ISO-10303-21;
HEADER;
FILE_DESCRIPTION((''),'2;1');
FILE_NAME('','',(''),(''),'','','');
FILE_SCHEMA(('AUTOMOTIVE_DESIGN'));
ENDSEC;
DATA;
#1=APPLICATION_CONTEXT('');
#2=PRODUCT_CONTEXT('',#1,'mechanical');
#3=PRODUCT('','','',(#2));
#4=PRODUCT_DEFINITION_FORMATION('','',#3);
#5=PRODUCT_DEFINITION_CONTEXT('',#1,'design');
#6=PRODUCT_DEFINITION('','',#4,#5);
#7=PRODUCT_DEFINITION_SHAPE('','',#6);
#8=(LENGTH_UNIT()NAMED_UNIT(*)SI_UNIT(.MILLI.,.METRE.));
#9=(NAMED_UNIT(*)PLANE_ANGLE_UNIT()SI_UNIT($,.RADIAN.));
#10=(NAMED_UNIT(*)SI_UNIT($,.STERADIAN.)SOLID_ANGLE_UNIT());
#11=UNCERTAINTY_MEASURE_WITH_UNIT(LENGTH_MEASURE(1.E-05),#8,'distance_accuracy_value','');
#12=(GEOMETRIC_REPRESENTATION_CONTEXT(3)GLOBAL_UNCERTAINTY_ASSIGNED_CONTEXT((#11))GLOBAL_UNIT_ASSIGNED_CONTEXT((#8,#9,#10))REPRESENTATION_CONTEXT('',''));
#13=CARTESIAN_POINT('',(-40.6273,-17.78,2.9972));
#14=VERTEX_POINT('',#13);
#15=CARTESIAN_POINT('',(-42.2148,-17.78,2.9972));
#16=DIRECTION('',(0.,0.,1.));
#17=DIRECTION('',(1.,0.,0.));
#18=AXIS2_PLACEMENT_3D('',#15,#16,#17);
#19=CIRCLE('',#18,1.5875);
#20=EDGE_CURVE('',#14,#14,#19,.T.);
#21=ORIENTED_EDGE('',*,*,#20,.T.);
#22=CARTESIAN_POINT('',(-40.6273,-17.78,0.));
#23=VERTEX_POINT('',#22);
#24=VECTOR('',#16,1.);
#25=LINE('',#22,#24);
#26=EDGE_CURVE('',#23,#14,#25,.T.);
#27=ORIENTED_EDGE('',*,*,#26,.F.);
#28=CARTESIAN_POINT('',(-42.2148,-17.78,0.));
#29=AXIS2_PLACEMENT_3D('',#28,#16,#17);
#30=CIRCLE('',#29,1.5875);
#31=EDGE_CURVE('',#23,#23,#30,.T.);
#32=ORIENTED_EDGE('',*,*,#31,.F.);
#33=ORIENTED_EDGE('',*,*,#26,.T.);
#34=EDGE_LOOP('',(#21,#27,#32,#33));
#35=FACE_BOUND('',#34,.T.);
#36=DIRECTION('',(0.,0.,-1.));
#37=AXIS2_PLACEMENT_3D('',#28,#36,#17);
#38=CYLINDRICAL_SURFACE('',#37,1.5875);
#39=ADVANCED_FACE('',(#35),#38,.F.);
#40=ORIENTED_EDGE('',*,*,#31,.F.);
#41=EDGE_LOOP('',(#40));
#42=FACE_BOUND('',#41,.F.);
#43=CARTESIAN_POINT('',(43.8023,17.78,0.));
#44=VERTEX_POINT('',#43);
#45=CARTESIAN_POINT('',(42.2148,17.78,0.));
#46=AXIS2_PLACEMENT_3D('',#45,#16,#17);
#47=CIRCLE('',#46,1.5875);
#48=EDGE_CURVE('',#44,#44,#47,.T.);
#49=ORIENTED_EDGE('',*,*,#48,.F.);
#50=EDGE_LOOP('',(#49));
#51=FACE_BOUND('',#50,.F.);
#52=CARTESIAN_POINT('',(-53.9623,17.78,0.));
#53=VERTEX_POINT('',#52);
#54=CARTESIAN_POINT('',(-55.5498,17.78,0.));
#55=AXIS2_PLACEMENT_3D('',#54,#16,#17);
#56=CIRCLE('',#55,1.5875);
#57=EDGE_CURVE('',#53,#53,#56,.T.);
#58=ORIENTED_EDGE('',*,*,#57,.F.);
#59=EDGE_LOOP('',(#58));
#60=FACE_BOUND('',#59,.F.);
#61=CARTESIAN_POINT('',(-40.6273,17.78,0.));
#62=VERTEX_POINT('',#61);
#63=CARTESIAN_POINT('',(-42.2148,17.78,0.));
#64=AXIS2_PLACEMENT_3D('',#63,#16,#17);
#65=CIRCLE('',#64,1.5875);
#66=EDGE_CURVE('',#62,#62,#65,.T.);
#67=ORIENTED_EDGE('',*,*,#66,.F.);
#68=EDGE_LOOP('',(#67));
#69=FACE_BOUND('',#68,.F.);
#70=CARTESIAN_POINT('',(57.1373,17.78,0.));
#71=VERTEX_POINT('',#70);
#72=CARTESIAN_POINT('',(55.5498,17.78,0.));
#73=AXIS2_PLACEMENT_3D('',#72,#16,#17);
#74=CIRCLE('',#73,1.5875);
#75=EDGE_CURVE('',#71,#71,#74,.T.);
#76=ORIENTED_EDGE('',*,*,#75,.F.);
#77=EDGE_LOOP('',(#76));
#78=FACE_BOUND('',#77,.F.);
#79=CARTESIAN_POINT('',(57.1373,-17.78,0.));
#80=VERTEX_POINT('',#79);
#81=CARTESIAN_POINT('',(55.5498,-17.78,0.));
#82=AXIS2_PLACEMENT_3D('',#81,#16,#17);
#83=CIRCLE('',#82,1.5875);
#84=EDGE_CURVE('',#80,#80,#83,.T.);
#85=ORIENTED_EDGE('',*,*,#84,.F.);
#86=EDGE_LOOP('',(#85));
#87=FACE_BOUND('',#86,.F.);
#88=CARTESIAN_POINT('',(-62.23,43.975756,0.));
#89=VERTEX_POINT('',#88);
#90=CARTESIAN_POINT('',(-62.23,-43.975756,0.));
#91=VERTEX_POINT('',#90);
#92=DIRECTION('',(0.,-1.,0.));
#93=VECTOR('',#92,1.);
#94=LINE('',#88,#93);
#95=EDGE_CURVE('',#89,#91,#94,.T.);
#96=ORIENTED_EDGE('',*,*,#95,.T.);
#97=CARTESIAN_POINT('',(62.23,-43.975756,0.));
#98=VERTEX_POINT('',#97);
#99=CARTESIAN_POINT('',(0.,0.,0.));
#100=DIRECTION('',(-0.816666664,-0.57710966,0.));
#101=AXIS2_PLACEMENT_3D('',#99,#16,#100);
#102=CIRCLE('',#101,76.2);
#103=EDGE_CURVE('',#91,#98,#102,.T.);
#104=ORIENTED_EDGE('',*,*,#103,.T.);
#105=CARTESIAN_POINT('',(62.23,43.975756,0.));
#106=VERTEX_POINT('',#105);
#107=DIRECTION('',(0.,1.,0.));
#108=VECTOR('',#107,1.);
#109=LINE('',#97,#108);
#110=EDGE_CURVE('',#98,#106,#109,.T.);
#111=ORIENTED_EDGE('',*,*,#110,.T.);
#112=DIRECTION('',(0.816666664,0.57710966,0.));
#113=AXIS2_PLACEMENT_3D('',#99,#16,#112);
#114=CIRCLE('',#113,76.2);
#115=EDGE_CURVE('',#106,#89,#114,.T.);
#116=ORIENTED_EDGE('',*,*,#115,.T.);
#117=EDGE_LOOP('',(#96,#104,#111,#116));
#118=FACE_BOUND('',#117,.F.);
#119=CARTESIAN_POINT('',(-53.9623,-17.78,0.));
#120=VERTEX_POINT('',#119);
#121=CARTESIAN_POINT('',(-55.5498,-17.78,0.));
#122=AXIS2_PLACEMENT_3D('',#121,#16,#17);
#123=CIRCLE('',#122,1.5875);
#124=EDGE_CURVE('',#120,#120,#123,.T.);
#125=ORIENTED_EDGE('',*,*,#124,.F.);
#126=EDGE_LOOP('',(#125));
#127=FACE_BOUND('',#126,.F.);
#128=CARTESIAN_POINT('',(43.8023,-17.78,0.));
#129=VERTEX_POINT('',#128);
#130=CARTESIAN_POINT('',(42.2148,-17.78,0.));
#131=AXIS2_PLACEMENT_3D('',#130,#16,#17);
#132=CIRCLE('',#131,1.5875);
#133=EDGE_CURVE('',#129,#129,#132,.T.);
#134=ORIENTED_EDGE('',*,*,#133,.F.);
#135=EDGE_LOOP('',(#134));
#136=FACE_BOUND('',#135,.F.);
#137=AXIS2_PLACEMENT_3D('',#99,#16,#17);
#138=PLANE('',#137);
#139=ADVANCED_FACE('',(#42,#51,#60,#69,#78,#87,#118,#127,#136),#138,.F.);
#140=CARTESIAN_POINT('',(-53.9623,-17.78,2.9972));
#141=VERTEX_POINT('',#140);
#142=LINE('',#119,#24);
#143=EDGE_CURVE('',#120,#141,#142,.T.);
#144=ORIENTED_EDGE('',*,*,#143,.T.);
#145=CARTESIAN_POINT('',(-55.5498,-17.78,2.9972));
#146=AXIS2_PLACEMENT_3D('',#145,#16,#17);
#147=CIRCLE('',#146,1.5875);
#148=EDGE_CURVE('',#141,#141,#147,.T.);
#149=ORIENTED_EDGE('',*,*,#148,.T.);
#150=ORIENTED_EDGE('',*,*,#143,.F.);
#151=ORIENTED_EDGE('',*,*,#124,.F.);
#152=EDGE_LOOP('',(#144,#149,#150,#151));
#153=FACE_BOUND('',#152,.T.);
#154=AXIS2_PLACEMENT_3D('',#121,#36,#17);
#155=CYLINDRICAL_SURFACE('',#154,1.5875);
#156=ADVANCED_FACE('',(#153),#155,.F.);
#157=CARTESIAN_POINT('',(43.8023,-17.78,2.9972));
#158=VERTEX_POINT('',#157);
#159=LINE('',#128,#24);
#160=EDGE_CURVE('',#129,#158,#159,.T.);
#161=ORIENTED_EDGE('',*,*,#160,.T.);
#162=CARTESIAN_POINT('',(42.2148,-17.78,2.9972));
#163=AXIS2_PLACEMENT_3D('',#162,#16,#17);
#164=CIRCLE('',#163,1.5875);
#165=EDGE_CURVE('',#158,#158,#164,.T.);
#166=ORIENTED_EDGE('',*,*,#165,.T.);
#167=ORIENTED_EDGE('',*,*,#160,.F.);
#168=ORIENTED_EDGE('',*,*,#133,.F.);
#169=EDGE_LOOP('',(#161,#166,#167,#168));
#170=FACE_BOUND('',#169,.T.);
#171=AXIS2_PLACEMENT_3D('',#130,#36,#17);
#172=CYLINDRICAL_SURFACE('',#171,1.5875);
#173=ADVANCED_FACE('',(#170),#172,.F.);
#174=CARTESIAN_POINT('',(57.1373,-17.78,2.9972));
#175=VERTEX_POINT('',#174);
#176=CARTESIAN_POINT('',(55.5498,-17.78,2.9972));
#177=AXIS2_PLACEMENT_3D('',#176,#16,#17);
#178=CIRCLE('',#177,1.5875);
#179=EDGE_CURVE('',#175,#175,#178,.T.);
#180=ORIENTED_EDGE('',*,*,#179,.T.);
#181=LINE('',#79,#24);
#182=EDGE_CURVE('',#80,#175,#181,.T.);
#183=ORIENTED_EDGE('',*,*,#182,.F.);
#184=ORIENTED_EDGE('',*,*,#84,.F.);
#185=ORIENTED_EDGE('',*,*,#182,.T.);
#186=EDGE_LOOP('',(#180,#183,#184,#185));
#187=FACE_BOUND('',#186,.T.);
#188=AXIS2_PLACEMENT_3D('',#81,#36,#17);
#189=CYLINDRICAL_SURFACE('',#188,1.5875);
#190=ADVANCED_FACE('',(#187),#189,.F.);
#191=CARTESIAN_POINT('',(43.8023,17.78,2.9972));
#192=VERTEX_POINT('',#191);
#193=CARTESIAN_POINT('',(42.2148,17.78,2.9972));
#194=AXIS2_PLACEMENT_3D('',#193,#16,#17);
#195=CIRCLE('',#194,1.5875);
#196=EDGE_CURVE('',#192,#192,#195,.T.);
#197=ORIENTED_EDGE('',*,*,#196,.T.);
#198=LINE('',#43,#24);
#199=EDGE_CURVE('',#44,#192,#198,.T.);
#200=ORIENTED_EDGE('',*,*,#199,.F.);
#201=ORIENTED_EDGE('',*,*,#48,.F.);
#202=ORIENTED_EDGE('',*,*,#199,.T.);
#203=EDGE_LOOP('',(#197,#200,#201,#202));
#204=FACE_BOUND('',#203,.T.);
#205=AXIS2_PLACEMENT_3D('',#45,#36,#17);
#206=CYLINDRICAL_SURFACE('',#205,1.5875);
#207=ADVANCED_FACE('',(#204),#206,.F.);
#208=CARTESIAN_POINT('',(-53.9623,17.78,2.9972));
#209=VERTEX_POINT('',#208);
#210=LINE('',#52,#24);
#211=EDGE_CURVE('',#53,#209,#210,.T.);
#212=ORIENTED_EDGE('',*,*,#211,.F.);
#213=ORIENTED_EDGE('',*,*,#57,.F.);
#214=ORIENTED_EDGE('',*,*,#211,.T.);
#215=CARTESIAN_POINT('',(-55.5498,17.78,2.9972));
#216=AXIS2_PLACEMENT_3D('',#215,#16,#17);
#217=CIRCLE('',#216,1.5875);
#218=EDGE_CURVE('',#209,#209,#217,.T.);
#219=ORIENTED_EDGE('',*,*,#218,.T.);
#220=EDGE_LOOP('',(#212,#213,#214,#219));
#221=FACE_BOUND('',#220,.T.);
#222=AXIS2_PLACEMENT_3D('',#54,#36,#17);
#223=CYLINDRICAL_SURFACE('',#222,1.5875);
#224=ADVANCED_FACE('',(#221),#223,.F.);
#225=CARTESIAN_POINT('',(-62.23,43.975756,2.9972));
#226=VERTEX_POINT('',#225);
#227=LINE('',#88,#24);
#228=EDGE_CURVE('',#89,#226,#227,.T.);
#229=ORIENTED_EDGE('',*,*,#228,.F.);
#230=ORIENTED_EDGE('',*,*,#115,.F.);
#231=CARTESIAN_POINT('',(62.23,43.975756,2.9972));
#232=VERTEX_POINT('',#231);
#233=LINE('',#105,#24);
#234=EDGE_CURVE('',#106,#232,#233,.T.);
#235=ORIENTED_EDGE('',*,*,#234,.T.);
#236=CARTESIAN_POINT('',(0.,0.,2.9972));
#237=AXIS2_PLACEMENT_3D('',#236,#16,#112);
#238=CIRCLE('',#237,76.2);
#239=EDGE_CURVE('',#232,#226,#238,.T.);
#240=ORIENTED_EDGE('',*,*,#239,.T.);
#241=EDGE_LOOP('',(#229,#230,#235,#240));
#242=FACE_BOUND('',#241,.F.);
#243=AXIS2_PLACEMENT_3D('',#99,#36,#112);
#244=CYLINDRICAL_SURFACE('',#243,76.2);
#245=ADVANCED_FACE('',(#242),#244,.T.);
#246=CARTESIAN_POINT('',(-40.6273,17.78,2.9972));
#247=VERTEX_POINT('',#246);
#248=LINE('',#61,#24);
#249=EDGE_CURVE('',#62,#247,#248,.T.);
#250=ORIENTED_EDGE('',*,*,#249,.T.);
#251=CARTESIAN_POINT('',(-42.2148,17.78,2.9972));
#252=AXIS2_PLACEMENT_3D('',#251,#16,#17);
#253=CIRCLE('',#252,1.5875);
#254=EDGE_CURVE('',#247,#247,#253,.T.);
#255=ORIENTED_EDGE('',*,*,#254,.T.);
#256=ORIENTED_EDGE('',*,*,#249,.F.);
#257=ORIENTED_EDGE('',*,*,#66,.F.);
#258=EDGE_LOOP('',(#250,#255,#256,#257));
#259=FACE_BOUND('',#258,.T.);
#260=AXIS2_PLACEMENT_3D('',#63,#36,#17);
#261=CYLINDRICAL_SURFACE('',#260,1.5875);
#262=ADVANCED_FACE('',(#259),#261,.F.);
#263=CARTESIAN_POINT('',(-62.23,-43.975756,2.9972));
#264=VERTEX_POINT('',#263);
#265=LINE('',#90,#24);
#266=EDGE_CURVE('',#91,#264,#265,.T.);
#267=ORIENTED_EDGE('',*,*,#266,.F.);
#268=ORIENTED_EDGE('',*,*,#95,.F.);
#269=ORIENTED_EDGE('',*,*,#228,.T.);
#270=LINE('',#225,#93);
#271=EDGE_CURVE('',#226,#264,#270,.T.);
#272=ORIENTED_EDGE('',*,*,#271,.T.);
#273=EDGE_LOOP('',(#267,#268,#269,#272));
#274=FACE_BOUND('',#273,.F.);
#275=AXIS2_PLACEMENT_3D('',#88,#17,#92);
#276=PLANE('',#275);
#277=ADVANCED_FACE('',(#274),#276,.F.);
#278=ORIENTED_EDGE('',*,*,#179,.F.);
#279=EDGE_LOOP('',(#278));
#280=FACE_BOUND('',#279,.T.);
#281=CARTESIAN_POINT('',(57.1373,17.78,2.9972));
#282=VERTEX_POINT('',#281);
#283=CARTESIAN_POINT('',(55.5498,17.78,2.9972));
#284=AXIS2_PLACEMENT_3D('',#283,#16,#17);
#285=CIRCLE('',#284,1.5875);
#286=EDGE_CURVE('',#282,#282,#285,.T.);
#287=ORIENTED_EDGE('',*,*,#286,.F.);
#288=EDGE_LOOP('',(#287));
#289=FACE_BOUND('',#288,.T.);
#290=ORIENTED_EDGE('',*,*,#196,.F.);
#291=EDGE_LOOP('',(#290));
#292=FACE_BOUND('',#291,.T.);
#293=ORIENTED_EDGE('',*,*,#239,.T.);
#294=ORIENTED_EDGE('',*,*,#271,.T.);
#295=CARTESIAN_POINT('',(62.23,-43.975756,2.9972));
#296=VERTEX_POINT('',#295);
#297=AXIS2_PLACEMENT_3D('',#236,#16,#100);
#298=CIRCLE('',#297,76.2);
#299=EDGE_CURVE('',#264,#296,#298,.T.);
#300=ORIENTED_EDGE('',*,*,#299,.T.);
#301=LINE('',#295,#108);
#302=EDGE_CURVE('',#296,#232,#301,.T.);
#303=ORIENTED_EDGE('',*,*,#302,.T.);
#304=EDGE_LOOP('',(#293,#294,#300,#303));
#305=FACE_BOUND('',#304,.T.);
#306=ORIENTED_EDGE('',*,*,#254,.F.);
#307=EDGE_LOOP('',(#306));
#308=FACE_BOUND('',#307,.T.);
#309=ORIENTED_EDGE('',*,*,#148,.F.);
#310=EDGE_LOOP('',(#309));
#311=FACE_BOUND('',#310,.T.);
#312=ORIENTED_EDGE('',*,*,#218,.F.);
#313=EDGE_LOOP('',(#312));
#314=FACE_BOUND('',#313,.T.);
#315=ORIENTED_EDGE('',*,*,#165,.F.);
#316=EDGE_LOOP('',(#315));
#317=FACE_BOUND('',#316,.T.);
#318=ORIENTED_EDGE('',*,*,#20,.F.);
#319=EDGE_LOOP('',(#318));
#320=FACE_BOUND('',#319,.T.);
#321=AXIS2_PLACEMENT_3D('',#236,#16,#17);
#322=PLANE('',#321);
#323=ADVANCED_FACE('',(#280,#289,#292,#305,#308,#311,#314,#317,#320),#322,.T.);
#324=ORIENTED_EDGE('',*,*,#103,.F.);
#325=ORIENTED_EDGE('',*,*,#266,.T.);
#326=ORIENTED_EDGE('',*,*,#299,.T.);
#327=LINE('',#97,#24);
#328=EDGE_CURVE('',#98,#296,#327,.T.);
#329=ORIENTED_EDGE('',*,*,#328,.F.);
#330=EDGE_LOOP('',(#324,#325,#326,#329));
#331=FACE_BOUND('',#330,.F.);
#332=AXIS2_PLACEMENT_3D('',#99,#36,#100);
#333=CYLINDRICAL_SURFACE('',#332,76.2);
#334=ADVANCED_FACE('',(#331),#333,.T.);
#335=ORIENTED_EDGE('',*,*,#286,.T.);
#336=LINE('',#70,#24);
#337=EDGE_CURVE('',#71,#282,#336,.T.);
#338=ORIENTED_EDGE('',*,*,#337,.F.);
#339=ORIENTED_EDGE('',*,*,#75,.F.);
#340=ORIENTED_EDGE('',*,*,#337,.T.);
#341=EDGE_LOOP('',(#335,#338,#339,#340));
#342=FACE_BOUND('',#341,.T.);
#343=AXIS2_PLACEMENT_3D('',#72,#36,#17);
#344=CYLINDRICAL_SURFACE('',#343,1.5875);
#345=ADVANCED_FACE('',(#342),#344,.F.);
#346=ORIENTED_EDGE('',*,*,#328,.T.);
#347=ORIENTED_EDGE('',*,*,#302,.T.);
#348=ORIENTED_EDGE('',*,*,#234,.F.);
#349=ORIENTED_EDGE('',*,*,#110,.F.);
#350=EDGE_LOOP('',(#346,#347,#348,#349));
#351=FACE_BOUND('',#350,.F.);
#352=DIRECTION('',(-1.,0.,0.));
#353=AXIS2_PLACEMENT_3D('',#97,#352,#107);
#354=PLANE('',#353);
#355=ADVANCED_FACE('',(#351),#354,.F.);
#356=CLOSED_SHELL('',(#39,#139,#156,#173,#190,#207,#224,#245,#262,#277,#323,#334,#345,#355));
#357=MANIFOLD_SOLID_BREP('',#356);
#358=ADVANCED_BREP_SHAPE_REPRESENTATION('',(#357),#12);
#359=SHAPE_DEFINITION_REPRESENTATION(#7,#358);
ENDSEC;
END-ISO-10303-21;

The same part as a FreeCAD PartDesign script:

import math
import FreeCAD as App
import Part
import Sketcher
Q = App.Units.Quantity

doc = App.newDocument("Part")
body = doc.addObject("PartDesign::Body", "Body")

# Sketch on XY plane
sketch1 = body.newObject("Sketcher::SketchObject", "Sketch")
sketch1.AttachmentSupport = (doc.getObject("XY_Plane"), [""])
sketch1.MapMode = "FlatFace"
sketch1.addGeometry([
    Part.LineSegment(App.Vector(-62.23, 43.975756, 0), App.Vector(-62.23, -43.975756, 0)),  # 0
    Part.ArcOfCircle(Part.Circle(App.Vector(0, 0, 0), App.Vector(0, 0, 1), 76.2), math.radians(-144.752493), math.radians(-35.247507)),  # 1
    Part.LineSegment(App.Vector(62.23, -43.975756, 0), App.Vector(62.23, 43.975756, 0)),  # 2
    Part.ArcOfCircle(Part.Circle(App.Vector(0, 0, 0), App.Vector(0, 0, 1), 76.2), math.radians(35.247507), math.radians(144.752493)),  # 3
    Part.Circle(App.Vector(-55.5498, -17.78, 0), App.Vector(0, 0, 1), 1.5875),  # 4
    Part.Circle(App.Vector(-42.2148, -17.78, 0), App.Vector(0, 0, 1), 1.5875),  # 5
    Part.Circle(App.Vector(42.2148, -17.78, 0), App.Vector(0, 0, 1), 1.5875),  # 6
    Part.Circle(App.Vector(55.5498, -17.78, 0), App.Vector(0, 0, 1), 1.5875),  # 7
    Part.Circle(App.Vector(-55.5498, 17.78, 0), App.Vector(0, 0, 1), 1.5875),  # 8
    Part.Circle(App.Vector(-42.2148, 17.78, 0), App.Vector(0, 0, 1), 1.5875),  # 9
    Part.Circle(App.Vector(42.2148, 17.78, 0), App.Vector(0, 0, 1), 1.5875),  # 10
    Part.Circle(App.Vector(55.5498, 17.78, 0), App.Vector(0, 0, 1), 1.5875),  # 11
], False)
sketch1.addConstraint([
    Sketcher.Constraint("Coincident", 0, 2, 1, 1),
    Sketcher.Constraint("Coincident", 1, 2, 2, 1),
    Sketcher.Constraint("Coincident", 2, 2, 3, 1),
    Sketcher.Constraint("Coincident", 3, 2, 0, 1),
    Sketcher.Constraint("Vertical", 0),
    Sketcher.Constraint("Vertical", 2),
    Sketcher.Constraint("Coincident", 1, 3, -1, 1),
    Sketcher.Constraint("Coincident", 3, 3, -1, 1),
    Sketcher.Constraint("Equal", 1, 3),
    Sketcher.Constraint("Equal", 4, 5),
    Sketcher.Constraint("Equal", 5, 6),
    Sketcher.Constraint("Equal", 6, 7),
    Sketcher.Constraint("Equal", 7, 8),
    Sketcher.Constraint("Equal", 8, 9),
    Sketcher.Constraint("Equal", 9, 10),
    Sketcher.Constraint("Equal", 10, 11),
    Sketcher.Constraint("Symmetric", 7, 3, 8, 3, -1, 1),
    Sketcher.Constraint("Symmetric", 6, 3, 9, 3, -1, 1),
    Sketcher.Constraint("Symmetric", 5, 3, 10, 3, -1, 1),
    Sketcher.Constraint("Symmetric", 4, 3, 11, 3, -1, 1),
    Sketcher.Constraint("Symmetric", 5, 3, 6, 3, -2),
    Sketcher.Constraint("Symmetric", 4, 3, 7, 3, -2),
    Sketcher.Constraint("Horizontal", 4, 3, 5, 3),
    Sketcher.Constraint("Horizontal", 0, 2, 1, 2),
    Sketcher.Constraint("Radius", 1, Q("3 in")),
    Sketcher.Constraint("Diameter", 4, Q("0.125 in")),
    Sketcher.Constraint("DistanceY", 4, 3, -1, 1, Q("0.7 in")),
    Sketcher.Constraint("DistanceX", 0, 2, -1, 1, Q("2.45 in")),
    Sketcher.Constraint("DistanceX", 4, 3, -1, 1, Q("2.187 in")),
    Sketcher.Constraint("DistanceX", 5, 3, -1, 1, Q("1.662 in")),
])
pad1 = body.newObject("PartDesign::Pad", "Pad")
pad1.Profile = sketch1
pad1.Length = Q("0.118 in")

doc.recompute()
